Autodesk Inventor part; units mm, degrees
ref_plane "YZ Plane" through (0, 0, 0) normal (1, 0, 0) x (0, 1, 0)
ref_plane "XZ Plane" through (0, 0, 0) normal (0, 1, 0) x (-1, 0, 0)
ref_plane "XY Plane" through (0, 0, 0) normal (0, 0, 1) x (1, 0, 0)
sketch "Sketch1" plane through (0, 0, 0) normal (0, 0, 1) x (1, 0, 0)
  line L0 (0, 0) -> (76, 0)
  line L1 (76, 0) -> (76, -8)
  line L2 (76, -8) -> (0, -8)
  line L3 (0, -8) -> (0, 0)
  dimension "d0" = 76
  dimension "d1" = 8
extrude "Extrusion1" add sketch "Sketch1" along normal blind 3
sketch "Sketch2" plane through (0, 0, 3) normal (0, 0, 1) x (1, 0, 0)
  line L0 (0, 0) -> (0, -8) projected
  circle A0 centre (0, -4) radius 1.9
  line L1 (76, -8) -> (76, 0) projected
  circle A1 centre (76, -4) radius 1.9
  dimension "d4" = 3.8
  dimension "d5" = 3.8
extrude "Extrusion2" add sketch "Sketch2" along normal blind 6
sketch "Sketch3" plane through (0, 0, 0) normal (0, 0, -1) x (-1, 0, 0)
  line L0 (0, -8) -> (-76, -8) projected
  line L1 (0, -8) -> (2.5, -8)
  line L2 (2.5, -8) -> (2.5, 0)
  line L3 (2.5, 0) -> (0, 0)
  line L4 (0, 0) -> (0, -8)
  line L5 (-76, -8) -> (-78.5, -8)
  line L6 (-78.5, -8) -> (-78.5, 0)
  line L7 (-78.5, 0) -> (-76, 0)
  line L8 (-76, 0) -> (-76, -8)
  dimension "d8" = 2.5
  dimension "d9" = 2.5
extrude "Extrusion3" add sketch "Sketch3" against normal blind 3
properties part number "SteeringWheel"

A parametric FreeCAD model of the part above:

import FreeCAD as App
import Part
import Sketcher
from FreeCAD import Vector
Q = App.Units.Quantity

doc = App.newDocument("Part")
body = doc.addObject("PartDesign::Body", "Body")

sketch1 = doc.addObject("Sketcher::SketchObject", "Sketch")
body.addObject(sketch1)
sketch1.AttachmentSupport = (doc.XY_Plane, [""])
sketch1.MapMode = "FlatFace"
sketch1.addGeometry([
    Part.LineSegment(Vector(76, 0, 0), Vector(0, 0, 0)),
    Part.LineSegment(Vector(0, 0, 0), Vector(0, -8, 0)),
    Part.LineSegment(Vector(0, -8, 0), Vector(76, -8, 0)),
    Part.LineSegment(Vector(76, -8, 0), Vector(76, 0, 0)),
], False)
sketch1.addConstraint([
    Sketcher.Constraint("Coincident", 0, 2, 1, 1),
    Sketcher.Constraint("Coincident", 1, 2, 2, 1),
    Sketcher.Constraint("Coincident", 2, 2, 3, 1),
    Sketcher.Constraint("Coincident", 3, 2, 0, 1),
    Sketcher.Constraint("Horizontal", 0),
    Sketcher.Constraint("Vertical", 1),
    Sketcher.Constraint("Horizontal", 2),
    Sketcher.Constraint("Vertical", 3),
    Sketcher.Constraint("Coincident", 0, 2, -1, 1),
    Sketcher.Constraint("DistanceX", 0, 2, 0, 1, Q("76 mm")),
    Sketcher.Constraint("DistanceY", 1, 2, 1, 1, Q("8 mm")),
])
pad1 = doc.addObject("PartDesign::Pad", "Pad")
body.addObject(pad1)
pad1.Profile = sketch1
pad1.Length = 3

sketch2 = doc.addObject("Sketcher::SketchObject", "Sketch001")
body.addObject(sketch2)
sketch2.AttachmentSupport = (doc.XY_Plane, [""])
sketch2.MapMode = "FlatFace"
sketch2.AttachmentOffset = App.Placement(Vector(0, 0, 3), App.Rotation())
sketch2.addGeometry([
    Part.Circle(Vector(0, -4, 0), Vector(0, 0, 1), 1.9),
    Part.Circle(Vector(76, -4, 0), Vector(0, 0, 1), 1.9),
], False)
sketch2.addConstraint([
    Sketcher.Constraint("Equal", 0, 1),
    Sketcher.Constraint("PointOnObject", 0, 3, -2),
    Sketcher.Constraint("Horizontal", 0, 3, 1, 3),
    Sketcher.Constraint("Diameter", 0, Q("3.8 mm")),
    Sketcher.Constraint("DistanceY", 0, 3, -1, 1, Q("4 mm")),
    Sketcher.Constraint("DistanceX", -1, 1, 1, 3, Q("76 mm")),
])
pad2 = doc.addObject("PartDesign::Pad", "Pad001")
body.addObject(pad2)
pad2.Profile = sketch2
pad2.Length = 6

sketch3 = doc.addObject("Sketcher::SketchObject", "Sketch002")
body.addObject(sketch3)
sketch3.AttachmentSupport = (doc.XY_Plane, [""])
sketch3.MapMode = "FlatFace"
sketch3.addGeometry([
    Part.LineSegment(Vector(78.5, -8, 0), Vector(76, -8, 0)),
    Part.LineSegment(Vector(76, -8, 0), Vector(76, 0, 0)),
    Part.LineSegment(Vector(76, 0, 0), Vector(78.5, 0, 0)),
    Part.LineSegment(Vector(78.5, 0, 0), Vector(78.5, -8, 0)),
    Part.LineSegment(Vector(0, 0, 0), Vector(0, -8, 0)),
    Part.LineSegment(Vector(0, -8, 0), Vector(-2.5, -8, 0)),
    Part.LineSegment(Vector(-2.5, -8, 0), Vector(-2.5, 0, 0)),
    Part.LineSegment(Vector(-2.5, 0, 0), Vector(0, 0, 0)),
], False)
sketch3.addConstraint([
    Sketcher.Constraint("Coincident", 0, 2, 1, 1),
    Sketcher.Constraint("Coincident", 1, 2, 2, 1),
    Sketcher.Constraint("Coincident", 2, 2, 3, 1),
    Sketcher.Constraint("Coincident", 3, 2, 0, 1),
    Sketcher.Constraint("Coincident", 4, 2, 5, 1),
    Sketcher.Constraint("Coincident", 5, 2, 6, 1),
    Sketcher.Constraint("Coincident", 6, 2, 7, 1),
    Sketcher.Constraint("Coincident", 7, 2, 4, 1),
    Sketcher.Constraint("Horizontal", 0),
    Sketcher.Constraint("Vertical", 1),
    Sketcher.Constraint("Horizontal", 2),
    Sketcher.Constraint("Vertical", 3),
    Sketcher.Constraint("Vertical", 4),
    Sketcher.Constraint("Horizontal", 5),
    Sketcher.Constraint("Vertical", 6),
    Sketcher.Constraint("Horizontal", 7),
    Sketcher.Constraint("Coincident", 7, 2, -1, 1),
    Sketcher.Constraint("PointOnObject", 1, 2, -1),
    Sketcher.Constraint("Horizontal", 3, 2, 4, 2),
    Sketcher.Constraint("Equal", 2, 5),
    Sketcher.Constraint("DistanceX", 0, 2, 0, 1, Q("2.5 mm")),
    Sketcher.Constraint("DistanceY", 1, 1, 1, 2, Q("8 mm")),
    Sketcher.Constraint("DistanceX", -1, 1, 0, 2, Q("76 mm")),
])
pad3 = doc.addObject("PartDesign::Pad", "Pad002")
body.addObject(pad3)
pad3.Profile = sketch3
pad3.Length = 3

doc.recompute()
